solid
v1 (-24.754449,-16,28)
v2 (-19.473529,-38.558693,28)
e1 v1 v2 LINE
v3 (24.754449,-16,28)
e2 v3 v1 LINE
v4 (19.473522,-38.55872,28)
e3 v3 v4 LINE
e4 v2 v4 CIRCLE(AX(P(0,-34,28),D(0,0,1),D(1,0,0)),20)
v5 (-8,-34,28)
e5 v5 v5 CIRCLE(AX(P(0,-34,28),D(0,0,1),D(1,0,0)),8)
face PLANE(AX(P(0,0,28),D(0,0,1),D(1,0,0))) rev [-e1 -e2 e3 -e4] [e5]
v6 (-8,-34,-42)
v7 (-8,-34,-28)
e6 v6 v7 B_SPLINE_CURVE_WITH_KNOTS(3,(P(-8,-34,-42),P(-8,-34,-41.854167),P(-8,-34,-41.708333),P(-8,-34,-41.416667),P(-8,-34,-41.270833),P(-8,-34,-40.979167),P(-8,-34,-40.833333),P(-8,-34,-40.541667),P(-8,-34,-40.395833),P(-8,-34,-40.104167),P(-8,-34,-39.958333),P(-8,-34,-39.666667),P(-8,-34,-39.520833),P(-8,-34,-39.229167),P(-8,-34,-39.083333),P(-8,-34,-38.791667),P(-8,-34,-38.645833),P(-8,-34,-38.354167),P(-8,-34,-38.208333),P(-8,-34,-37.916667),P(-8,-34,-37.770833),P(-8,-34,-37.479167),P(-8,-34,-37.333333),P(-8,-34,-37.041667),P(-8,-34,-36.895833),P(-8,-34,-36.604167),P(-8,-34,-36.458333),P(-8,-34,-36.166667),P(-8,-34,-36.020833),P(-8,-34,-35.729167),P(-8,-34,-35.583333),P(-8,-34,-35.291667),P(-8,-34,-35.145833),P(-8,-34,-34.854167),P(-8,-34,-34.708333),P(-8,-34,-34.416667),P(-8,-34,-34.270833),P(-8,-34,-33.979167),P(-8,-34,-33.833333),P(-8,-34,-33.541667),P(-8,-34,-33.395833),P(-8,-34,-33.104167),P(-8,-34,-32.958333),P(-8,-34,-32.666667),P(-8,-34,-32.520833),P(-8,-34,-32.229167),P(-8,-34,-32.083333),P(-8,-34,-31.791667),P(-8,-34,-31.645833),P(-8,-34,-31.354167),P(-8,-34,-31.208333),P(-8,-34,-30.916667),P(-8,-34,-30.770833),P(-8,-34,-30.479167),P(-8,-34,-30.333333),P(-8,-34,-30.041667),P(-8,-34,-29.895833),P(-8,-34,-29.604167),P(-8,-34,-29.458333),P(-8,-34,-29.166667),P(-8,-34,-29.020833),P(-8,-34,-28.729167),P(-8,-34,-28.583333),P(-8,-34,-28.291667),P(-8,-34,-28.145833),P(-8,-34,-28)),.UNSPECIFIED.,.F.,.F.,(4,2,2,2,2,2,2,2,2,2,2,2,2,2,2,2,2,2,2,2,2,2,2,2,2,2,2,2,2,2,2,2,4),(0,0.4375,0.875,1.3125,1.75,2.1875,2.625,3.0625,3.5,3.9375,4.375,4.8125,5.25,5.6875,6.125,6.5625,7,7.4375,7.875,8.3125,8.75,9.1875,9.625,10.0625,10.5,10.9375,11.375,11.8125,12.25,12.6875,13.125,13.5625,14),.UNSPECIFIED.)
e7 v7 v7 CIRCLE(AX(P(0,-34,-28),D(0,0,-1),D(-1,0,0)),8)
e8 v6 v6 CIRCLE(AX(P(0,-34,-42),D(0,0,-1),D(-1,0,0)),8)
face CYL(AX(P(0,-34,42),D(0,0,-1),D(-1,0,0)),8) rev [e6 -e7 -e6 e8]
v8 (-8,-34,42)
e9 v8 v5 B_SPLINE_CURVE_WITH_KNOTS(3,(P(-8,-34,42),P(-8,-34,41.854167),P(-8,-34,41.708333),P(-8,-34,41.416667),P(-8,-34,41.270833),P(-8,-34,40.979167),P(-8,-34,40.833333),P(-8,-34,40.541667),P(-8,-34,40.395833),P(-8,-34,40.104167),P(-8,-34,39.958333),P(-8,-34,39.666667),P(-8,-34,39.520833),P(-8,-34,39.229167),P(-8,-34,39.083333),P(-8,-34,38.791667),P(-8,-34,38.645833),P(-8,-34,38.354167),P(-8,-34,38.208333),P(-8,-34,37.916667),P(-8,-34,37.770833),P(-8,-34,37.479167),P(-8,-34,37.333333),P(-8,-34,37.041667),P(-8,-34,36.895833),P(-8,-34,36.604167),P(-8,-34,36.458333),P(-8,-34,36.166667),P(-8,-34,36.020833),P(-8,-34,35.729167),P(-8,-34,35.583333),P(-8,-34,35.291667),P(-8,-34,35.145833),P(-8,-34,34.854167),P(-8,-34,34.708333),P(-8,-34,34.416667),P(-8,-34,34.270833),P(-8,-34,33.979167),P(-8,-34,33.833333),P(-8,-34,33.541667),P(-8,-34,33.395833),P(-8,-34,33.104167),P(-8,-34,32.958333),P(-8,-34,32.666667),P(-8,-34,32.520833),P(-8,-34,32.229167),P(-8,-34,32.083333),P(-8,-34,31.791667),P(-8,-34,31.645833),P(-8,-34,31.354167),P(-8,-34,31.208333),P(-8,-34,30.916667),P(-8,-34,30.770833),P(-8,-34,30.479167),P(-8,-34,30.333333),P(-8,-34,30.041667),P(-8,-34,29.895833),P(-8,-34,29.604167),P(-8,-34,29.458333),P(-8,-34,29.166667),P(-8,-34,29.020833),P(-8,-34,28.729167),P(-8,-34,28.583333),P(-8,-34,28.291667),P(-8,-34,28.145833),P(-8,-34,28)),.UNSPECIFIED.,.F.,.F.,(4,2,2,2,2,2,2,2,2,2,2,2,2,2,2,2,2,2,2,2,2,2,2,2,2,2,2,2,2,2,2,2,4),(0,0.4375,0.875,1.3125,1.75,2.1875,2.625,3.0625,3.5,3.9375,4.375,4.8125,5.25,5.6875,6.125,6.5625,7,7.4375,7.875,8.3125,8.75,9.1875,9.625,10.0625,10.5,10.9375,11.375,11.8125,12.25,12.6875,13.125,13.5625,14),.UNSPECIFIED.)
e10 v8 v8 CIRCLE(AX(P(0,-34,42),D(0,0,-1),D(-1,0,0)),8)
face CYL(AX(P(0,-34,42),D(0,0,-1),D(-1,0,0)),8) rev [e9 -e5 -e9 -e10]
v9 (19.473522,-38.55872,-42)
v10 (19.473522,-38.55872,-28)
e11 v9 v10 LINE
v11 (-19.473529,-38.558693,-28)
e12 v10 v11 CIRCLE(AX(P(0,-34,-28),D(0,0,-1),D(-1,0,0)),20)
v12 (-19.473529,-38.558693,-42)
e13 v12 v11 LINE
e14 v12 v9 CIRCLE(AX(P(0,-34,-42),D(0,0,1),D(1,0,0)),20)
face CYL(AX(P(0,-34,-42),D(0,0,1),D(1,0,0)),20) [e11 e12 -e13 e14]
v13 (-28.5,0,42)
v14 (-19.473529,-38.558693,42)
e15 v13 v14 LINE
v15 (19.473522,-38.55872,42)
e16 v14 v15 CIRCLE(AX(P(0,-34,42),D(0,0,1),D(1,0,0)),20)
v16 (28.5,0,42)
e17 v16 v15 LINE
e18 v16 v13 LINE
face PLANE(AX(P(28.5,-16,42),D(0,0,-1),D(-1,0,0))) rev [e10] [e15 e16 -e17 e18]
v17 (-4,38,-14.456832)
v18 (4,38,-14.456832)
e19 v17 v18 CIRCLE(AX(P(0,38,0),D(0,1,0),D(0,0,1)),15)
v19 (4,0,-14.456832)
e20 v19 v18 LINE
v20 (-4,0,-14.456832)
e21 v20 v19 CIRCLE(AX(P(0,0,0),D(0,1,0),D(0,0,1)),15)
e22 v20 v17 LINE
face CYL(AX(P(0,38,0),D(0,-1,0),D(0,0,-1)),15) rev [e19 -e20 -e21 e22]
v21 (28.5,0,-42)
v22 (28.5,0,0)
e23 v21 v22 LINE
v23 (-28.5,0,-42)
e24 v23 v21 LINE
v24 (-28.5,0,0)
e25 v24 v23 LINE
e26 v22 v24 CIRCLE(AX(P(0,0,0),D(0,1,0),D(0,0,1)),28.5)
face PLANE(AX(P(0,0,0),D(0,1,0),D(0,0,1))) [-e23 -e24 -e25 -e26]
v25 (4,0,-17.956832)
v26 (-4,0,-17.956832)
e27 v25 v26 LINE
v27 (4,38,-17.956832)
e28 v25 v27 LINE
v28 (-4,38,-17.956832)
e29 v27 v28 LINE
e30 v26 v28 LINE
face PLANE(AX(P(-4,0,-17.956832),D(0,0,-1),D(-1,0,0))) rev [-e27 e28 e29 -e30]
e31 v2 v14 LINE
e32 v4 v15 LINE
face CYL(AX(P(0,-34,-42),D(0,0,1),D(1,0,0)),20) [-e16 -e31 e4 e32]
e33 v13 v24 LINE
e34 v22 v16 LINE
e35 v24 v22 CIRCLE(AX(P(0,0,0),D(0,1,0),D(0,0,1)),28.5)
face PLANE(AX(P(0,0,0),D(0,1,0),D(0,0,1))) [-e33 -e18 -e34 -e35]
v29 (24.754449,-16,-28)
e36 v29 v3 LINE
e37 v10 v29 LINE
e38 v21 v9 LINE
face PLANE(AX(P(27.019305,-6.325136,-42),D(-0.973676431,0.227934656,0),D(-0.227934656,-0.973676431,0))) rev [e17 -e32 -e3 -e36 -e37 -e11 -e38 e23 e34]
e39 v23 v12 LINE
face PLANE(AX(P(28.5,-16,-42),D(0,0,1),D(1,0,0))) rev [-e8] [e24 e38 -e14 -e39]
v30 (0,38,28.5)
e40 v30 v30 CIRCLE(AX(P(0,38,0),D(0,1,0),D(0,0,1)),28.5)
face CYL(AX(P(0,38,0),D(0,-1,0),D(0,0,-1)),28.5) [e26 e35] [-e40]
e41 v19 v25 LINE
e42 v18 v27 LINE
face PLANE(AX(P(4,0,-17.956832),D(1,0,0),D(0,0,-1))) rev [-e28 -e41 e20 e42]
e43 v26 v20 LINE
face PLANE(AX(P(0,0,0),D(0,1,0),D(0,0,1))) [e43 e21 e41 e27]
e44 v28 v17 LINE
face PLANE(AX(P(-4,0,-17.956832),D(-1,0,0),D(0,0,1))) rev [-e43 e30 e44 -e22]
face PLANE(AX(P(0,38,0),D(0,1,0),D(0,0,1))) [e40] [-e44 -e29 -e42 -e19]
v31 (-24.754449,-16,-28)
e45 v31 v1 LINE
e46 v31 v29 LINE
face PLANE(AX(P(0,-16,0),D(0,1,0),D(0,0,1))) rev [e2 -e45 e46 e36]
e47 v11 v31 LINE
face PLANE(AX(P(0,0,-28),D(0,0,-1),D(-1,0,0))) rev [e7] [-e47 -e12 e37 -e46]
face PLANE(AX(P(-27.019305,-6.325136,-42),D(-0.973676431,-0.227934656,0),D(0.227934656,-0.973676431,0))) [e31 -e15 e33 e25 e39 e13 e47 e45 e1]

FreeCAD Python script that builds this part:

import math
import FreeCAD as App
import Part
import Sketcher

V = App.Vector
Q = App.Units.Quantity


def add_polygon(sketch, points):
    """Adds a closed chain of lines whose ends are joined by coincident constraints."""
    first, n = sketch.GeometryCount, len(points)
    for a, b in zip(points, points[1:] + points[:1]):
        sketch.addGeometry(Part.LineSegment(App.Vector(*a, 0), App.Vector(*b, 0)), False)
    for i in range(n):
        sketch.addConstraint(Sketcher.Constraint("Coincident", first + i, 2, first + (i + 1) % n, 1))

doc = App.newDocument("Part")
body = doc.addObject("PartDesign::Body", "Body")

sketch1 = doc.addObject("Sketcher::SketchObject", "Sketch")
body.addObject(sketch1)
sketch1.AttachmentSupport = (doc.XZ_Plane, [""])
sketch1.MapMode = "FlatFace"
sketch1.addGeometry(Part.Circle(V(0, 0, 0), V(0, 0, 1), 28), False)
sketch1.addGeometry(Part.Circle(V(0, 0, 0), V(0, 0, 1), 15), False)
sketch1.addConstraint(Sketcher.Constraint("Coincident", 0, 3, -1, 1))
sketch1.addConstraint(Sketcher.Constraint("Coincident", 1, 3, -1, 1))
sketch1.addConstraint(Sketcher.Constraint("Diameter", 0, Q("57 mm")))
sketch1.addConstraint(Sketcher.Constraint("Diameter", 1, Q("30 mm")))
pad1 = doc.addObject("PartDesign::Pad", "Pad")
body.addObject(pad1)
pad1.Profile = sketch1
pad1.Length = 38
pad1.Reversed = True

sketch2 = doc.addObject("Sketcher::SketchObject", "Sketch001")
body.addObject(sketch2)
sketch2.AttachmentSupport = (doc.XZ_Plane, [""])
sketch2.MapMode = "FlatFace"
add_polygon(sketch2, [(-28, 42), (-28, -42), (28, -42), (28, 42)])
sketch2.addConstraint(Sketcher.Constraint("Vertical", 0))
sketch2.addConstraint(Sketcher.Constraint("Horizontal", 1))
sketch2.addConstraint(Sketcher.Constraint("Vertical", 2))
sketch2.addConstraint(Sketcher.Constraint("Horizontal", 3))
sketch2.addConstraint(Sketcher.Constraint("Symmetric", 0, 2, 2, 2, -1, 1))
sketch2.addConstraint(Sketcher.Constraint("DistanceX", 1, 1, 1, 2, Q("57 mm")))
sketch2.addConstraint(Sketcher.Constraint("DistanceY", 0, 2, 0, 1, Q("84 mm")))
pad2 = doc.addObject("PartDesign::Pad", "Pad001")
body.addObject(pad2)
pad2.Profile = sketch2
pad2.Length = 16

sketch3 = doc.addObject("Sketcher::SketchObject", "Sketch002")
body.addObject(sketch3)
sketch3.AttachmentSupport = (doc.XY_Plane, [""])
sketch3.MapMode = "FlatFace"
sketch3.AttachmentOffset = App.Placement(V(0, 0, 42), App.Rotation())
add_polygon(sketch3, [(-28, -16), (-28, -54), (28, -54), (28, -16)])
sketch3.addConstraint(Sketcher.Constraint("Vertical", 0))
sketch3.addConstraint(Sketcher.Constraint("Horizontal", 1))
sketch3.addConstraint(Sketcher.Constraint("Vertical", 2))
sketch3.addConstraint(Sketcher.Constraint("Horizontal", 3))
sketch3.addConstraint(Sketcher.Constraint("DistanceX", 1, 1, 1, 2, Q("57 mm")))
sketch3.addConstraint(Sketcher.Constraint("DistanceY", 0, 2, 0, 1, Q("38 mm")))
sketch3.addConstraint(Sketcher.Constraint("DistanceY", 0, 2, -1, 1, Q("54 mm")))
sketch3.addConstraint(Sketcher.Constraint("DistanceX", 0, 2, -1, 1, Q("28.5 mm")))
pad3 = doc.addObject("PartDesign::Pad", "Pad002")
body.addObject(pad3)
pad3.Profile = sketch3
pad3.Length = 14
pad3.Reversed = True

sketch4 = doc.addObject("Sketcher::SketchObject", "Sketch003")
body.addObject(sketch4)
sketch4.AttachmentSupport = (doc.XY_Plane, [""])
sketch4.MapMode = "FlatFace"
sketch4.AttachmentOffset = App.Placement(V(0, 0, -42), App.Rotation())
add_polygon(sketch4, [(28, -16), (28, -54), (-28, -54), (-28, -16)])
sketch4.addConstraint(Sketcher.Constraint("Vertical", 0))
sketch4.addConstraint(Sketcher.Constraint("Horizontal", 1))
sketch4.addConstraint(Sketcher.Constraint("Vertical", 2))
sketch4.addConstraint(Sketcher.Constraint("Horizontal", 3))
sketch4.addConstraint(Sketcher.Constraint("DistanceX", 1, 2, 1, 1, Q("57 mm")))
sketch4.addConstraint(Sketcher.Constraint("DistanceY", 0, 2, 0, 1, Q("38 mm")))
sketch4.addConstraint(Sketcher.Constraint("DistanceY", 0, 2, -1, 1, Q("54 mm")))
sketch4.addConstraint(Sketcher.Constraint("DistanceX", -1, 1, 0, 2, Q("28.5 mm")))
pad4 = doc.addObject("PartDesign::Pad", "Pad003")
body.addObject(pad4)
pad4.Profile = sketch4
pad4.Length = 14

sketch5 = doc.addObject("Sketcher::SketchObject", "Sketch004")
body.addObject(sketch5)
sketch5.AttachmentSupport = (doc.XY_Plane, [""])
sketch5.MapMode = "FlatFace"
sketch5.AttachmentOffset = App.Placement(V(0, 0, -42), App.Rotation())
sketch5.addGeometry(Part.Circle(V(0, -34, 0), V(0, 0, 1), 8), False)
sketch5.addConstraint(Sketcher.Constraint("PointOnObject", 0, 3, -2))
sketch5.addConstraint(Sketcher.Constraint("Diameter", 0, Q("16 mm")))
sketch5.addConstraint(Sketcher.Constraint("DistanceY", 0, 3, -1, 1, Q("34 mm")))
pocket1 = doc.addObject("PartDesign::Pocket", "Pocket")
body.addObject(pocket1)
pocket1.Profile = sketch5
pocket1.Type = "ThroughAll"
pocket1.Reversed = True

sketch6 = doc.addObject("Sketcher::SketchObject", "Sketch005")
body.addObject(sketch6)
sketch6.AttachmentSupport = (doc.XY_Plane, [""])
sketch6.MapMode = "FlatFace"
sketch6.AttachmentOffset = App.Placement(V(0, 0, 42), App.Rotation())
sketch6.addGeometry(Part.LineSegment(V(-19.473529, -38.558693, 0), V(-28.5, 0, 0)), False)
sketch6.addGeometry(Part.LineSegment(V(-28.5, 0, 0), V(-28.5, -54, 0)), False)
sketch6.addGeometry(Part.LineSegment(V(-28.5, -54, 0), V(0, -54, 0)), False)
sketch6.addGeometry(Part.ArcOfCircle(Part.Circle(V(0, -34, 0), V(0, 0, 1), 20), math.radians(-166.824493), math.radians(-90)), False)
sketch6.addGeometry(Part.ArcOfCircle(Part.Circle(V(0, -34, 0), V(0, 0, 1), 20), math.radians(-90), math.radians(-13.175587)), False)
sketch6.addGeometry(Part.LineSegment(V(0, -54, 0), V(28.5, -54, 0)), False)
sketch6.addGeometry(Part.LineSegment(V(28.5, -54, 0), V(28.5, 0, 0)), False)
sketch6.addGeometry(Part.LineSegment(V(28.5, 0, 0), V(19.473522, -38.55872, 0)), False)
sketch6.addConstraint(Sketcher.Constraint("Coincident", 0, 2, 1, 1))
sketch6.addConstraint(Sketcher.Constraint("Coincident", 1, 2, 2, 1))
sketch6.addConstraint(Sketcher.Constraint("Coincident", 2, 2, 3, 2))
sketch6.addConstraint(Sketcher.Constraint("Coincident", 3, 1, 0, 1))
sketch6.addConstraint(Sketcher.Constraint("Coincident", 4, 1, 5, 1))
sketch6.addConstraint(Sketcher.Constraint("Coincident", 5, 2, 6, 1))
sketch6.addConstraint(Sketcher.Constraint("Coincident", 6, 2, 7, 1))
sketch6.addConstraint(Sketcher.Constraint("Coincident", 7, 2, 4, 2))
sketch6.addConstraint(Sketcher.Constraint("Vertical", 1))
sketch6.addConstraint(Sketcher.Constraint("Horizontal", 2))
sketch6.addConstraint(Sketcher.Constraint("Horizontal", 5))
sketch6.addConstraint(Sketcher.Constraint("Vertical", 6))
sketch6.addConstraint(Sketcher.Constraint("Coincident", 4, 3, 3, 3))
sketch6.addConstraint(Sketcher.Constraint("Coincident", 4, 1, 2, 2))
sketch6.addConstraint(Sketcher.Constraint("PointOnObject", 3, 3, -2))
sketch6.addConstraint(Sketcher.Constraint("PointOnObject", 0, 2, -1))
sketch6.addConstraint(Sketcher.Constraint("PointOnObject", 2, 2, -2))
sketch6.addConstraint(Sketcher.Constraint("PointOnObject", 6, 2, -1))
sketch6.addConstraint(Sketcher.Constraint("Radius", 3, Q("20 mm")))
sketch6.addConstraint(Sketcher.Constraint("DistanceY", 1, 2, 1, 1, Q("54 mm")))
sketch6.addConstraint(Sketcher.Constraint("DistanceX", 2, 1, 2, 2, Q("28.5 mm")))
sketch6.addConstraint(Sketcher.Constraint("DistanceX", 5, 1, 5, 2, Q("28.5 mm")))
sketch6.addConstraint(Sketcher.Constraint("DistanceX", 3, 1, -1, 1, Q("19.473529 mm")))
sketch6.addConstraint(Sketcher.Constraint("DistanceY", 7, 2, -1, 1, Q("38.55872 mm")))
pocket2 = doc.addObject("PartDesign::Pocket", "Pocket001")
body.addObject(pocket2)
pocket2.Profile = sketch6
pocket2.Type = "ThroughAll"

sketch7 = doc.addObject("Sketcher::SketchObject", "Sketch006")
body.addObject(sketch7)
sketch7.AttachmentSupport = (doc.XZ_Plane, [""])
sketch7.MapMode = "FlatFace"
sketch7.addGeometry(Part.LineSegment(V(4, -18, 0), V(-4, -18, 0)), False)
sketch7.addGeometry(Part.LineSegment(V(-4, -18, 0), V(-4, -14.5, 0)), False)
sketch7.addGeometry(Part.ArcOfCircle(Part.Circle(V(0, 0, 0), V(0, 0, 1), 15), math.radians(-105), math.radians(-75)), False)
sketch7.addGeometry(Part.LineSegment(V(4, -14.5, 0), V(4, -18, 0)), False)
sketch7.addConstraint(Sketcher.Constraint("Coincident", 0, 2, 1, 1))
sketch7.addConstraint(Sketcher.Constraint("Coincident", 1, 2, 2, 1))
sketch7.addConstraint(Sketcher.Constraint("Coincident", 2, 2, 3, 1))
sketch7.addConstraint(Sketcher.Constraint("Coincident", 3, 2, 0, 1))
sketch7.addConstraint(Sketcher.Constraint("Horizontal", 0))
sketch7.addConstraint(Sketcher.Constraint("Vertical", 1))
sketch7.addConstraint(Sketcher.Constraint("Vertical", 3))
sketch7.addConstraint(Sketcher.Constraint("Coincident", 2, 3, -1, 1))
sketch7.addConstraint(Sketcher.Constraint("Horizontal", 1, 2, 2, 2))
sketch7.addConstraint(Sketcher.Constraint("Radius", 2, Q("15 mm")))
sketch7.addConstraint(Sketcher.Constraint("DistanceX", 0, 2, 0, 1, Q("8 mm")))
sketch7.addConstraint(Sketcher.Constraint("DistanceY", 1, 1, 1, 2, Q("3.5 mm")))
pocket3 = doc.addObject("PartDesign::Pocket", "Pocket002")
body.addObject(pocket3)
pocket3.Profile = sketch7
pocket3.Length = 38

doc.recompute()
